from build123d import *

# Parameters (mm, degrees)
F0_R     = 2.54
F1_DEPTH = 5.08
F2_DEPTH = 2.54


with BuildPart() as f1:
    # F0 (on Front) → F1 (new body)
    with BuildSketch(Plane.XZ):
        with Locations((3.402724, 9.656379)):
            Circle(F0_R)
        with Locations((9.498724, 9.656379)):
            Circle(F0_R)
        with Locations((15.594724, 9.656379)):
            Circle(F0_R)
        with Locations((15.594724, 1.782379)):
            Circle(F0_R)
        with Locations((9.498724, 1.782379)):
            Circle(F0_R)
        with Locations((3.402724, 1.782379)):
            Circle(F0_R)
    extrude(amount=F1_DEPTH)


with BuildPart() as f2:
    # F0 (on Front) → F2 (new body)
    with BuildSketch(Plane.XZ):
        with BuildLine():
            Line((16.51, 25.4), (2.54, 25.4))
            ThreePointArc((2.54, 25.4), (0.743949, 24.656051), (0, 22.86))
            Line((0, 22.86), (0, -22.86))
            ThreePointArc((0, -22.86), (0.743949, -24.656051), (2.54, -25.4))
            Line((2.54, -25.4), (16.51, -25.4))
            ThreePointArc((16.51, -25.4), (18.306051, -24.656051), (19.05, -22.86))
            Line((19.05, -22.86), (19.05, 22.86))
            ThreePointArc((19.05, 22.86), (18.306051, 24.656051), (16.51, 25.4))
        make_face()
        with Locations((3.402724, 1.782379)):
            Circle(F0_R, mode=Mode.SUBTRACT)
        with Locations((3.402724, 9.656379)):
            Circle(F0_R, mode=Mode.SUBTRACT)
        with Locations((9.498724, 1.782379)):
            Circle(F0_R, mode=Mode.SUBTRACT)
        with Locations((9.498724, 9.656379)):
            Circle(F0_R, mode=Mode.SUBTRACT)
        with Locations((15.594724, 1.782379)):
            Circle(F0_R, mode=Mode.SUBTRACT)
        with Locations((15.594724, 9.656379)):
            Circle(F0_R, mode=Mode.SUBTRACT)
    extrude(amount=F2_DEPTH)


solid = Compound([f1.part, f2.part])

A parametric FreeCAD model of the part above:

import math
import FreeCAD as App
import Part
import Sketcher
from FreeCAD import Vector
Q = App.Units.Quantity

doc = App.newDocument("Part")
body = doc.addObject("PartDesign::Body", "Body")
body.AllowCompound = True

sketch1 = body.newObject("Sketcher::SketchObject", "Sketch")
sketch1.AttachmentSupport = (doc.getObject("XZ_Plane"), [""])
sketch1.MapMode = "FlatFace"
sketch1.addGeometry(Part.Circle(Vector(3.402724, 9.656379, 0), Vector(0, 0, 1), 2.54), False)
sketch1.addGeometry(Part.Circle(Vector(9.498724, 9.656379, 0), Vector(0, 0, 1), 2.54), False)
sketch1.addGeometry(Part.Circle(Vector(15.594724, 9.656379, 0), Vector(0, 0, 1), 2.54), False)
sketch1.addGeometry(Part.Circle(Vector(15.594724, 1.782379, 0), Vector(0, 0, 1), 2.54), False)
sketch1.addGeometry(Part.Circle(Vector(9.498724, 1.782379, 0), Vector(0, 0, 1), 2.54), False)
sketch1.addGeometry(Part.Circle(Vector(3.402724, 1.782379, 0), Vector(0, 0, 1), 2.54), False)
sketch1.addConstraint(Sketcher.Constraint("Equal", 0, 1))
sketch1.addConstraint(Sketcher.Constraint("Equal", 1, 2))
sketch1.addConstraint(Sketcher.Constraint("Equal", 2, 3))
sketch1.addConstraint(Sketcher.Constraint("Equal", 3, 4))
sketch1.addConstraint(Sketcher.Constraint("Equal", 4, 5))
sketch1.addConstraint(Sketcher.Constraint("Horizontal", 0, 3, 1, 3))
sketch1.addConstraint(Sketcher.Constraint("Horizontal", 1, 3, 2, 3))
sketch1.addConstraint(Sketcher.Constraint("Horizontal", 3, 3, 4, 3))
sketch1.addConstraint(Sketcher.Constraint("Horizontal", 4, 3, 5, 3))
sketch1.addConstraint(Sketcher.Constraint("Vertical", 2, 3, 3, 3))
sketch1.addConstraint(Sketcher.Constraint("Vertical", 1, 3, 4, 3))
sketch1.addConstraint(Sketcher.Constraint("Vertical", 0, 3, 5, 3))
sketch1.addConstraint(Sketcher.Constraint("Diameter", 0, Q("0.2 in")))
sketch1.addConstraint(Sketcher.Constraint("DistanceX", 0, 3, 1, 3, Q("0.24 in")))
sketch1.addConstraint(Sketcher.Constraint("DistanceX", 1, 3, 2, 3, Q("0.24 in")))
sketch1.addConstraint(Sketcher.Constraint("DistanceY", 3, 3, 2, 3, Q("0.31 in")))
sketch1.addConstraint(Sketcher.Constraint("DistanceY", -1, 1, 0, 3, 9.656379))
sketch1.addConstraint(Sketcher.Constraint("DistanceX", -1, 1, 0, 3, 3.402724))
pad1 = body.newObject("PartDesign::Pad", "Pad")
pad1.Profile = sketch1
pad1.Length = Q("0.2 in")
body2 = doc.addObject("PartDesign::Body", "Body001")

sketch2 = body2.newObject("Sketcher::SketchObject", "Sketch001")
sketch2.AttachmentSupport = (doc.getObject("XZ_Plane001"), [""])
sketch2.MapMode = "FlatFace"
sketch2.addGeometry(Part.LineSegment(Vector(16.51, 25.4, 0), Vector(2.54, 25.4, 0)), False)
sketch2.addGeometry(Part.ArcOfCircle(Part.Circle(Vector(2.540001, 22.859999, 0), Vector(0, 0, 1), 2.540001), math.radians(90.000017), math.radians(179.999983)), False)
sketch2.addGeometry(Part.LineSegment(Vector(0, 22.86, 0), Vector(0, -22.86, 0)), False)
sketch2.addGeometry(Part.ArcOfCircle(Part.Circle(Vector(2.540001, -22.859999, 0), Vector(0, 0, 1), 2.540001), math.radians(-179.999983), math.radians(-90.000017)), False)
sketch2.addGeometry(Part.LineSegment(Vector(2.54, -25.4, 0), Vector(16.51, -25.4, 0)), False)
sketch2.addGeometry(Part.ArcOfCircle(Part.Circle(Vector(16.509999, -22.859999, 0), Vector(0, 0, 1), 2.540001), math.radians(-89.999983), math.radians(-0.000017)), False)
sketch2.addGeometry(Part.LineSegment(Vector(19.05, -22.86, 0), Vector(19.05, 22.86, 0)), False)
sketch2.addGeometry(Part.ArcOfCircle(Part.Circle(Vector(16.509999, 22.859999, 0), Vector(0, 0, 1), 2.540001), math.radians(0.000017), math.radians(89.999983)), False)
sketch2.addGeometry(Part.Circle(Vector(3.402724, 1.782379, 0), Vector(0, 0, 1), 2.54), False)
sketch2.addGeometry(Part.Circle(Vector(9.498724, 1.782379, 0), Vector(0, 0, 1), 2.54), False)
sketch2.addGeometry(Part.Circle(Vector(15.594724, 1.782379, 0), Vector(0, 0, 1), 2.54), False)
sketch2.addGeometry(Part.Circle(Vector(3.402724, 9.656379, 0), Vector(0, 0, 1), 2.54), False)
sketch2.addGeometry(Part.Circle(Vector(9.498724, 9.656379, 0), Vector(0, 0, 1), 2.54), False)
sketch2.addGeometry(Part.Circle(Vector(15.594724, 9.656379, 0), Vector(0, 0, 1), 2.54), False)
sketch2.addConstraint(Sketcher.Constraint("Tangent", 0, 2, 1, 1))
sketch2.addConstraint(Sketcher.Constraint("Tangent", 1, 2, 2, 1))
sketch2.addConstraint(Sketcher.Constraint("Tangent", 2, 2, 3, 1))
sketch2.addConstraint(Sketcher.Constraint("Tangent", 3, 2, 4, 1))
sketch2.addConstraint(Sketcher.Constraint("Tangent", 4, 2, 5, 1))
sketch2.addConstraint(Sketcher.Constraint("Tangent", 5, 2, 6, 1))
sketch2.addConstraint(Sketcher.Constraint("Tangent", 6, 2, 7, 1))
sketch2.addConstraint(Sketcher.Constraint("Tangent", 7, 2, 0, 1))
sketch2.addConstraint(Sketcher.Constraint("Horizontal", 0))
sketch2.addConstraint(Sketcher.Constraint("Vertical", 2))
sketch2.addConstraint(Sketcher.Constraint("Horizontal", 4))
sketch2.addConstraint(Sketcher.Constraint("Vertical", 6))
sketch2.addConstraint(Sketcher.Constraint("Equal", 1, 3))
sketch2.addConstraint(Sketcher.Constraint("Equal", 3, 5))
sketch2.addConstraint(Sketcher.Constraint("Equal", 5, 7))
sketch2.addConstraint(Sketcher.Constraint("Equal", 7, 8))
sketch2.addConstraint(Sketcher.Constraint("Equal", 8, 9))
sketch2.addConstraint(Sketcher.Constraint("Equal", 9, 10))
sketch2.addConstraint(Sketcher.Constraint("Equal", 10, 11))
sketch2.addConstraint(Sketcher.Constraint("Equal", 11, 12))
sketch2.addConstraint(Sketcher.Constraint("Equal", 12, 13))
sketch2.addConstraint(Sketcher.Constraint("Symmetric", 1, 2, 2, 2, -1, 1))
sketch2.addConstraint(Sketcher.Constraint("Horizontal", 8, 3, 9, 3))
sketch2.addConstraint(Sketcher.Constraint("Horizontal", 9, 3, 10, 3))
sketch2.addConstraint(Sketcher.Constraint("Horizontal", 11, 3, 12, 3))
sketch2.addConstraint(Sketcher.Constraint("Horizontal", 12, 3, 13, 3))
sketch2.addConstraint(Sketcher.Constraint("Vertical", 8, 3, 11, 3))
sketch2.addConstraint(Sketcher.Constraint("Vertical", 9, 3, 12, 3))
sketch2.addConstraint(Sketcher.Constraint("Vertical", 10, 3, 13, 3))
sketch2.addConstraint(Sketcher.Constraint("Diameter", 8, Q("0.2 in")))
sketch2.addConstraint(Sketcher.Constraint("DistanceY", 2, 2, 2, 1, Q("1.8 in")))
sketch2.addConstraint(Sketcher.Constraint("DistanceX", 0, 2, 0, 1, Q("0.55 in")))
sketch2.addConstraint(Sketcher.Constraint("DistanceX", 8, 3, 9, 3, Q("0.24 in")))
sketch2.addConstraint(Sketcher.Constraint("DistanceX", 9, 3, 10, 3, Q("0.24 in")))
sketch2.addConstraint(Sketcher.Constraint("DistanceY", 8, 3, 11, 3, Q("0.31 in")))
sketch2.addConstraint(Sketcher.Constraint("DistanceY", -1, 1, 8, 3, 1.782379))
sketch2.addConstraint(Sketcher.Constraint("DistanceX", -1, 1, 8, 3, 3.402724))
pad2 = body2.newObject("PartDesign::Pad", "Pad001")
pad2.Profile = sketch2
pad2.Length = Q("0.1 in")

doc.recompute()
